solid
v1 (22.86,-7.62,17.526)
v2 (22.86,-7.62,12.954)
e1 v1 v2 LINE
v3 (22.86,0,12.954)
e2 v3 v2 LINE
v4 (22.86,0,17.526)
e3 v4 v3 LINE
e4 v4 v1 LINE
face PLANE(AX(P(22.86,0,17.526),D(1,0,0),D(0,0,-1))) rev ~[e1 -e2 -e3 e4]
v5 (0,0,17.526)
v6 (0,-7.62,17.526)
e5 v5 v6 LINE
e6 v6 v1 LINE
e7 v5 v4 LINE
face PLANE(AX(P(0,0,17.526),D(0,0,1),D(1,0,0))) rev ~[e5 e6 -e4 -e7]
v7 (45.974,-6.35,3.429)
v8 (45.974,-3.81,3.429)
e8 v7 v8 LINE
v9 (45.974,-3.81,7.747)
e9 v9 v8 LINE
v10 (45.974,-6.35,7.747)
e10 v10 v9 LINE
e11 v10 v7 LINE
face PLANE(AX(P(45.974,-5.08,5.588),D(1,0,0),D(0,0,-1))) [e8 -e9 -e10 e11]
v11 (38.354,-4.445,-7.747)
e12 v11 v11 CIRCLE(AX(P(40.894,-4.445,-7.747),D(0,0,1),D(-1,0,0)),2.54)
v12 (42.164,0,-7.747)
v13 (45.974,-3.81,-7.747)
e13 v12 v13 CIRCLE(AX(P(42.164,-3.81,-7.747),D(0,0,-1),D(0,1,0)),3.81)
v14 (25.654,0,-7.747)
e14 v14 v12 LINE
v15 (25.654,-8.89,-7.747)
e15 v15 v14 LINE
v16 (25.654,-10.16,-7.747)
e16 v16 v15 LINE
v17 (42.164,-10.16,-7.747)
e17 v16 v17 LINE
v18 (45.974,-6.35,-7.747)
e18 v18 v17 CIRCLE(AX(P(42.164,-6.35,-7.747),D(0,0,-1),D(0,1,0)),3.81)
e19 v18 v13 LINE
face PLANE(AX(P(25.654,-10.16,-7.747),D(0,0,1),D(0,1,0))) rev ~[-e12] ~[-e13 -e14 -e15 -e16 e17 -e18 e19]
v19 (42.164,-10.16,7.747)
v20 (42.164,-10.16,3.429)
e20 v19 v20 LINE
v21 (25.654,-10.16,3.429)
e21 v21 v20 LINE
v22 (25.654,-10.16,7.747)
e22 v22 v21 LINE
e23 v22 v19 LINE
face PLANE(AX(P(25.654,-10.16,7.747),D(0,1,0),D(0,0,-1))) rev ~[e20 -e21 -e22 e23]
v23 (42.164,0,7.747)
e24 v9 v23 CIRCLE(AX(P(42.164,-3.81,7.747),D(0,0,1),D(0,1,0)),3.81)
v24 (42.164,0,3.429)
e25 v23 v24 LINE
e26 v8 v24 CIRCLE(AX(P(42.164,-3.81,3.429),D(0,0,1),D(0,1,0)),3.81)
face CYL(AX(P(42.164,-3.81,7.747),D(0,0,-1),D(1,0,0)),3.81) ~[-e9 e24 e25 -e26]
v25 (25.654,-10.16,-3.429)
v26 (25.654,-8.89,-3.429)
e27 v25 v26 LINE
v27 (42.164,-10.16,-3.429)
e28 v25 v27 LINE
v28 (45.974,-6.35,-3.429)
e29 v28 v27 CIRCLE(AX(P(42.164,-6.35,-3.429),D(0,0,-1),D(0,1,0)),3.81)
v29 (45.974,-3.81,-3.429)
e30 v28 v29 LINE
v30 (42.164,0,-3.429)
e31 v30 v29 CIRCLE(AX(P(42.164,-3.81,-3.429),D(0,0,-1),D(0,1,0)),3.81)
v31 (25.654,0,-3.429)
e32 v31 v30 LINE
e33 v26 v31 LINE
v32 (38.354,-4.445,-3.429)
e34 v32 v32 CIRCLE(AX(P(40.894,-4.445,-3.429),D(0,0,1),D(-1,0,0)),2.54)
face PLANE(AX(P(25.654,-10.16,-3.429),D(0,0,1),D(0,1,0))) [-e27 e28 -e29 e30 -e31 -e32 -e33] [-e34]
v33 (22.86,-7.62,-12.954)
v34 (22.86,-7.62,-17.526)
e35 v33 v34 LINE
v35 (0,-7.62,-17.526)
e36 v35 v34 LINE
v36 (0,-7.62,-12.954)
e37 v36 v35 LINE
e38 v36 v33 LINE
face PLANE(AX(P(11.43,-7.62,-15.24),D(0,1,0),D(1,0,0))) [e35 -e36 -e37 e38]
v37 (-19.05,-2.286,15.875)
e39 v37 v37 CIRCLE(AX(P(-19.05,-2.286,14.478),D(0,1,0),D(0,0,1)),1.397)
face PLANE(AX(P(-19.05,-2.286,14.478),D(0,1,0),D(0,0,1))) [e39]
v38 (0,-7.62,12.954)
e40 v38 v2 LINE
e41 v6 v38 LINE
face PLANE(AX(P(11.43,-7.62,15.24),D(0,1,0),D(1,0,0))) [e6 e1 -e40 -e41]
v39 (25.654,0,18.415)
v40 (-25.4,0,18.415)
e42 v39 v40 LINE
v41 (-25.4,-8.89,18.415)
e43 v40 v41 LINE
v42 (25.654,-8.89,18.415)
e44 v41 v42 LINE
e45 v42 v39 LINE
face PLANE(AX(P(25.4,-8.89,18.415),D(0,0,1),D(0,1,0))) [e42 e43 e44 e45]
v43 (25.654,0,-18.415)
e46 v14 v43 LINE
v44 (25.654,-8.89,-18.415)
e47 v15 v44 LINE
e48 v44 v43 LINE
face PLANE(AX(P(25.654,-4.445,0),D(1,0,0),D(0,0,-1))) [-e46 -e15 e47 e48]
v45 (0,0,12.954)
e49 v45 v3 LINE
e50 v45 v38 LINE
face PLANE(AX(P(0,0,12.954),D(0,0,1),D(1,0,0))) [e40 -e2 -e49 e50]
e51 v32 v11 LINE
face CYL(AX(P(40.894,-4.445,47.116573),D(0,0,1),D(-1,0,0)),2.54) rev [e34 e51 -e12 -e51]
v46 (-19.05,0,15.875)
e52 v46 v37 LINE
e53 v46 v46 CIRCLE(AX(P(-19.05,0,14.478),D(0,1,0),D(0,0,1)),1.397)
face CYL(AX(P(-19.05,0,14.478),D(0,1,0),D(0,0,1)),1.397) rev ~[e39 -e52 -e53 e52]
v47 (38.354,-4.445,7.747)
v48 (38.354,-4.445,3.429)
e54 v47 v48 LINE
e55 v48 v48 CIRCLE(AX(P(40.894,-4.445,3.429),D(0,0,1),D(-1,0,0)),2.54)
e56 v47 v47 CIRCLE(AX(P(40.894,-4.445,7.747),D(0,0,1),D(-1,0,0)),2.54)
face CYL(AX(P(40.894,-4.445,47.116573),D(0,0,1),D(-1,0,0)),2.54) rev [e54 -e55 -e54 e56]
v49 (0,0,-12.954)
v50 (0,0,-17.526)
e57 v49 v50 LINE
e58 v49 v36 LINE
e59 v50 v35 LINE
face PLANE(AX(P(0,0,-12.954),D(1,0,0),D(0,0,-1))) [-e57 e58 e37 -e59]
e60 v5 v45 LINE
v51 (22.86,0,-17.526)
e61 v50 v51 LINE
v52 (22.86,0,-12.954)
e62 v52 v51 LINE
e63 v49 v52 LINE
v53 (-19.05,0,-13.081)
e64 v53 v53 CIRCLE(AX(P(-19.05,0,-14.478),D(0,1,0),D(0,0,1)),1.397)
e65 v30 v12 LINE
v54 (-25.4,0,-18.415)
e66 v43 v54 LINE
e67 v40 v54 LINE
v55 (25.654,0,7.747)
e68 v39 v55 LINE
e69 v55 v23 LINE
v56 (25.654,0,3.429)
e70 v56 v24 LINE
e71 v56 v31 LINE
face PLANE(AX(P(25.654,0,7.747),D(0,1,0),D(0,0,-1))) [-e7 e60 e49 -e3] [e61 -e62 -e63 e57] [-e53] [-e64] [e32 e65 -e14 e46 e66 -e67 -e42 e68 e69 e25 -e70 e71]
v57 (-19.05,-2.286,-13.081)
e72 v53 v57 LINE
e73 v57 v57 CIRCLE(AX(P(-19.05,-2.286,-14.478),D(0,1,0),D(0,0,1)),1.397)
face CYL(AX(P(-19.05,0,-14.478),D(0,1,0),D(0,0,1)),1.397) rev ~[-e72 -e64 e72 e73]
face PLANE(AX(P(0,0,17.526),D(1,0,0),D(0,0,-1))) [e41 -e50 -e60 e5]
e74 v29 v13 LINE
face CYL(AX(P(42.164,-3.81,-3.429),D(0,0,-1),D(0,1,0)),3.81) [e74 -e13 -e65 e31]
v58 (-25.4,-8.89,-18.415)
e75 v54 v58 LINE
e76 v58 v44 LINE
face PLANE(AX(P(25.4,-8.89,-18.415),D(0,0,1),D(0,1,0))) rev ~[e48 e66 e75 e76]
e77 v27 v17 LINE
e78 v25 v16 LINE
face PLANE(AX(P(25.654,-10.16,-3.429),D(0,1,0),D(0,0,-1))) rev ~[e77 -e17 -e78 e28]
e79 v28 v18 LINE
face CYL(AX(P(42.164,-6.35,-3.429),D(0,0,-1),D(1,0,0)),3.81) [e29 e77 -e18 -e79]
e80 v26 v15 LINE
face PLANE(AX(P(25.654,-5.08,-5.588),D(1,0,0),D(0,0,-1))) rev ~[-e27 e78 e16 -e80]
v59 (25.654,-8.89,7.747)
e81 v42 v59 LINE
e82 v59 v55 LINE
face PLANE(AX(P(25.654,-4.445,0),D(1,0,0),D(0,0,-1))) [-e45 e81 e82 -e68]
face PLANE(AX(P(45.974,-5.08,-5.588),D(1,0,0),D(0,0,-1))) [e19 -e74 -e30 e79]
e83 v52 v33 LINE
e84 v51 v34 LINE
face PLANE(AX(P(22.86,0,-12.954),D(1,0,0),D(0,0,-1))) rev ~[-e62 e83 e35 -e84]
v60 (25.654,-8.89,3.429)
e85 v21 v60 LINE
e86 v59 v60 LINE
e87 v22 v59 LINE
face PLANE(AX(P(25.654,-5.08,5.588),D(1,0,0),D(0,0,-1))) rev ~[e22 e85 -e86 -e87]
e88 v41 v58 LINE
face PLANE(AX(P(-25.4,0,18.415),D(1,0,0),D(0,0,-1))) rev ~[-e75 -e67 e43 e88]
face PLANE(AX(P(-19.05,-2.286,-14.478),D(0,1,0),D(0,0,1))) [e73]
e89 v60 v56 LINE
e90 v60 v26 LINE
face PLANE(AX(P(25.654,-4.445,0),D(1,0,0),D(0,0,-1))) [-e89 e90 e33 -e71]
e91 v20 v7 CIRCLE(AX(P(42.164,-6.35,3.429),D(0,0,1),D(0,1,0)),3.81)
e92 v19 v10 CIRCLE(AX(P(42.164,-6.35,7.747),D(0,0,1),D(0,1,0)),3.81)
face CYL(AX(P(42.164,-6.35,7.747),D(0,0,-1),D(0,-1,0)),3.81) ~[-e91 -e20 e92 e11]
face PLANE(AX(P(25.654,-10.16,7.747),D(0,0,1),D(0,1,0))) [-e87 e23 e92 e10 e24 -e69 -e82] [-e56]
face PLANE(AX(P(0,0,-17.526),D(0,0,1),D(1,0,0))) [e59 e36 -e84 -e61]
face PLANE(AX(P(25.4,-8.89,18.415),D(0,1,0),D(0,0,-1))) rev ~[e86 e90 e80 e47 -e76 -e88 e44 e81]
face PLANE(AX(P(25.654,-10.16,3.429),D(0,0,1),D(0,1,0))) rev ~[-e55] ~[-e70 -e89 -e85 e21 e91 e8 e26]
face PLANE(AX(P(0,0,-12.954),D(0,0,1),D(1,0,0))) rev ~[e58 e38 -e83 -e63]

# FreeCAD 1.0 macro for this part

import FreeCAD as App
import Part
import Sketcher
from FreeCAD import Vector
Q = App.Units.Quantity


def edges_at(feature, points):
    """Names of the edges that pass closest to the given points."""
    edges = feature.Shape.Edges
    near = lambda p: min(range(len(edges)), key=lambda i: edges[i].distToShape(Part.Vertex(*p))[0])
    return sorted({f"Edge{near(p) + 1}" for p in points})


def add_polygon(sketch, points):
    """Adds a closed chain of lines whose ends are joined by coincident constraints."""
    first, n = sketch.GeometryCount, len(points)
    for a, b in zip(points, points[1:] + points[:1]):
        sketch.addGeometry(Part.LineSegment(App.Vector(*a, 0), App.Vector(*b, 0)), False)
    for i in range(n):
        sketch.addConstraint(Sketcher.Constraint("Coincident", first + i, 2, first + (i + 1) % n, 1))

doc = App.newDocument("Part")
body = doc.addObject("PartDesign::Body", "Body")

sketch1 = body.newObject("Sketcher::SketchObject", "Sketch")
sketch1.AttachmentSupport = (doc.getObject("XZ_Plane"), [""])
sketch1.MapMode = "FlatFace"
add_polygon(sketch1, [(-25, -18), (-25, 18), (25, 18), (25, -18)])
sketch1.addConstraint([
    Sketcher.Constraint("Vertical", 0),
    Sketcher.Constraint("Horizontal", 1),
    Sketcher.Constraint("Vertical", 2),
    Sketcher.Constraint("Horizontal", 3),
    Sketcher.Constraint("Symmetric", 0, 2, 2, 2, -1, 1),
    Sketcher.Constraint("DistanceX", 1, 1, 1, 2, Q("2 in")),
    Sketcher.Constraint("DistanceY", 0, 1, 0, 2, Q("1.45 in")),
])
pad1 = body.newObject("PartDesign::Pad", "Pad")
pad1.Profile = sketch1
pad1.Length = Q("0.35 in")

sketch2 = body.newObject("Sketcher::SketchObject", "Sketch001")
sketch2.AttachmentSupport = (doc.getObject("YZ_Plane"), [""])
sketch2.MapMode = "FlatFace"
sketch2.AttachmentOffset = App.Placement(Vector(0, 0, 1 * 25.4), App.Rotation())
add_polygon(sketch2, [(0, 18), (-9, 18), (-9, -18), (0, -18)])
sketch2.addConstraint([
    Sketcher.Constraint("Horizontal", 0),
    Sketcher.Constraint("Vertical", 1),
    Sketcher.Constraint("Horizontal", 2),
    Sketcher.Constraint("Vertical", 3),
    Sketcher.Constraint("Symmetric", 2, 2, 3, 2, -1, 1),
    Sketcher.Constraint("DistanceX", 0, 2, 0, 1, Q("0.35 in")),
    Sketcher.Constraint("DistanceY", 1, 2, 1, 1, Q("1.45 in")),
])
pad2 = body.newObject("PartDesign::Pad", "Pad001")
pad2.Profile = sketch2
pad2.Length = Q("0.01 in")

sketch3 = body.newObject("Sketcher::SketchObject", "Sketch002")
sketch3.AttachmentSupport = (doc.getObject("YZ_Plane"), [""])
sketch3.MapMode = "FlatFace"
sketch3.AttachmentOffset = App.Placement(Vector(0, 0, 1.01 * 25.4), App.Rotation())
add_polygon(sketch3, [(0, 7.7), (-10.2, 7.7), (-10.2, 3.4), (0, 3.4)])
add_polygon(sketch3, [(0, -3.4), (-10.2, -3.4), (-10.2, -7.7), (0, -7.7)])
sketch3.addConstraint([
    Sketcher.Constraint("Horizontal", 0),
    Sketcher.Constraint("Vertical", 1),
    Sketcher.Constraint("Horizontal", 2),
    Sketcher.Constraint("Vertical", 3),
    Sketcher.Constraint("Horizontal", 4),
    Sketcher.Constraint("Vertical", 5),
    Sketcher.Constraint("Horizontal", 6),
    Sketcher.Constraint("Vertical", 7),
    Sketcher.Constraint("Symmetric", 3, 2, 6, 2, -1, 1),
    Sketcher.Constraint("Symmetric", 1, 2, 4, 2, -1),
    Sketcher.Constraint("PointOnObject", 2, 2, -2),
    Sketcher.Constraint("DistanceX", 0, 2, 0, 1, Q("0.4 in")),
    Sketcher.Constraint("DistanceY", 1, 2, 1, 1, Q("0.17 in")),
    Sketcher.Constraint("DistanceY", 4, 2, 1, 2, Q("0.27 in")),
])
pad3 = body.newObject("PartDesign::Pad", "Pad002")
pad3.Profile = sketch3
pad3.Length = Q("0.8 in")

sketch4 = body.newObject("Sketcher::SketchObject", "Sketch003")
sketch4.AttachmentSupport = (doc.getObject("XY_Plane"), [""])
sketch4.MapMode = "FlatFace"
sketch4.AttachmentOffset = App.Placement(Vector(0, 0, -0.305 * 25.4), App.Rotation())
sketch4.addGeometry(Part.Circle(Vector(40.9, -4.4, 0), Vector(0, 0, 1), 2.5), False)
sketch4.addConstraint([
    Sketcher.Constraint("Diameter", 0, Q("0.2 in")),
    Sketcher.Constraint("DistanceX", -1, 1, 0, 3, Q("1.61 in")),
    Sketcher.Constraint("DistanceY", 0, 3, -1, 1, Q("0.175 in")),
])
pocket1 = body.newObject("PartDesign::Pocket", "Pocket")
pocket1.Profile = sketch4
pocket1.Type = "ThroughAll"
pocket1.Midplane = True
doc.recompute()

fillet = body.newObject("PartDesign::Fillet", "Fillet")
fillet.Base = (pocket1, edges_at(pocket1, [
    (45.974, 0, 5.588),
    (45.974, -10.16, 5.588),
    (45.974, 0, -5.588),
    (45.974, -10.16, -5.588),
]))
fillet.Radius = Q("0.15 in")

sketch5 = body.newObject("Sketcher::SketchObject", "Sketch004")
sketch5.AttachmentSupport = (doc.getObject("XZ_Plane"), [""])
sketch5.MapMode = "FlatFace"
sketch5.addGeometry([
    Part.Circle(Vector(-19.1, 14.5, 0), Vector(0, 0, 1), 1.4),
    Part.Circle(Vector(-19.1, -14.5, 0), Vector(0, 0, 1), 1.4),
], False)
sketch5.addConstraint([
    Sketcher.Constraint("Equal", 0, 1),
    Sketcher.Constraint("Symmetric", 0, 3, 1, 3, -1),
    Sketcher.Constraint("Diameter", 0, Q("0.11 in")),
    Sketcher.Constraint("DistanceX", 0, 3, -1, 1, Q("0.75 in")),
    Sketcher.Constraint("DistanceY", -1, 1, 0, 3, Q("0.57 in")),
])
pocket2 = body.newObject("PartDesign::Pocket", "Pocket001")
pocket2.Profile = sketch5
pocket2.Length = Q("0.09 in")
pocket2.Reversed = True

sketch6 = body.newObject("Sketcher::SketchObject", "Sketch005")
sketch6.AttachmentSupport = (doc.getObject("XZ_Plane"), [""])
sketch6.MapMode = "FlatFace"
add_polygon(sketch6, [(0, -17.5), (0, -13), (22.9, -13), (22.9, -17.5)])
sketch6.addConstraint([
    Sketcher.Constraint("Vertical", 0),
    Sketcher.Constraint("Horizontal", 1),
    Sketcher.Constraint("Vertical", 2),
    Sketcher.Constraint("Horizontal", 3),
    Sketcher.Constraint("PointOnObject", 0, 2, -2),
    Sketcher.Constraint("DistanceX", 1, 1, 1, 2, Q("0.9 in")),
    Sketcher.Constraint("DistanceY", 0, 1, 0, 2, Q("0.18 in")),
    Sketcher.Constraint("DistanceY", 0, 2, -1, 1, Q("0.51 in")),
])
pocket3 = body.newObject("PartDesign::Pocket", "Pocket002")
pocket3.Profile = sketch6
pocket3.Length = Q("0.3 in")
pocket3.Reversed = True

sketch7 = body.newObject("Sketcher::SketchObject", "Sketch006")
sketch7.AttachmentSupport = (doc.getObject("XZ_Plane"), [""])
sketch7.MapMode = "FlatFace"
add_polygon(sketch7, [(0, 13), (0, 17.5), (22.9, 17.5), (22.9, 13)])
sketch7.addConstraint([
    Sketcher.Constraint("Vertical", 0),
    Sketcher.Constraint("Horizontal", 1),
    Sketcher.Constraint("Vertical", 2),
    Sketcher.Constraint("Horizontal", 3),
    Sketcher.Constraint("PointOnObject", 0, 2, -2),
    Sketcher.Constraint("DistanceX", 1, 1, 1, 2, Q("0.9 in")),
    Sketcher.Constraint("DistanceY", 0, 1, 0, 2, Q("0.18 in")),
    Sketcher.Constraint("DistanceY", -1, 1, 0, 2, Q("0.69 in")),
])
pocket4 = body.newObject("PartDesign::Pocket", "Pocket003")
pocket4.Profile = sketch7
pocket4.Length = Q("0.3 in")
pocket4.Reversed = True

doc.recompute()
